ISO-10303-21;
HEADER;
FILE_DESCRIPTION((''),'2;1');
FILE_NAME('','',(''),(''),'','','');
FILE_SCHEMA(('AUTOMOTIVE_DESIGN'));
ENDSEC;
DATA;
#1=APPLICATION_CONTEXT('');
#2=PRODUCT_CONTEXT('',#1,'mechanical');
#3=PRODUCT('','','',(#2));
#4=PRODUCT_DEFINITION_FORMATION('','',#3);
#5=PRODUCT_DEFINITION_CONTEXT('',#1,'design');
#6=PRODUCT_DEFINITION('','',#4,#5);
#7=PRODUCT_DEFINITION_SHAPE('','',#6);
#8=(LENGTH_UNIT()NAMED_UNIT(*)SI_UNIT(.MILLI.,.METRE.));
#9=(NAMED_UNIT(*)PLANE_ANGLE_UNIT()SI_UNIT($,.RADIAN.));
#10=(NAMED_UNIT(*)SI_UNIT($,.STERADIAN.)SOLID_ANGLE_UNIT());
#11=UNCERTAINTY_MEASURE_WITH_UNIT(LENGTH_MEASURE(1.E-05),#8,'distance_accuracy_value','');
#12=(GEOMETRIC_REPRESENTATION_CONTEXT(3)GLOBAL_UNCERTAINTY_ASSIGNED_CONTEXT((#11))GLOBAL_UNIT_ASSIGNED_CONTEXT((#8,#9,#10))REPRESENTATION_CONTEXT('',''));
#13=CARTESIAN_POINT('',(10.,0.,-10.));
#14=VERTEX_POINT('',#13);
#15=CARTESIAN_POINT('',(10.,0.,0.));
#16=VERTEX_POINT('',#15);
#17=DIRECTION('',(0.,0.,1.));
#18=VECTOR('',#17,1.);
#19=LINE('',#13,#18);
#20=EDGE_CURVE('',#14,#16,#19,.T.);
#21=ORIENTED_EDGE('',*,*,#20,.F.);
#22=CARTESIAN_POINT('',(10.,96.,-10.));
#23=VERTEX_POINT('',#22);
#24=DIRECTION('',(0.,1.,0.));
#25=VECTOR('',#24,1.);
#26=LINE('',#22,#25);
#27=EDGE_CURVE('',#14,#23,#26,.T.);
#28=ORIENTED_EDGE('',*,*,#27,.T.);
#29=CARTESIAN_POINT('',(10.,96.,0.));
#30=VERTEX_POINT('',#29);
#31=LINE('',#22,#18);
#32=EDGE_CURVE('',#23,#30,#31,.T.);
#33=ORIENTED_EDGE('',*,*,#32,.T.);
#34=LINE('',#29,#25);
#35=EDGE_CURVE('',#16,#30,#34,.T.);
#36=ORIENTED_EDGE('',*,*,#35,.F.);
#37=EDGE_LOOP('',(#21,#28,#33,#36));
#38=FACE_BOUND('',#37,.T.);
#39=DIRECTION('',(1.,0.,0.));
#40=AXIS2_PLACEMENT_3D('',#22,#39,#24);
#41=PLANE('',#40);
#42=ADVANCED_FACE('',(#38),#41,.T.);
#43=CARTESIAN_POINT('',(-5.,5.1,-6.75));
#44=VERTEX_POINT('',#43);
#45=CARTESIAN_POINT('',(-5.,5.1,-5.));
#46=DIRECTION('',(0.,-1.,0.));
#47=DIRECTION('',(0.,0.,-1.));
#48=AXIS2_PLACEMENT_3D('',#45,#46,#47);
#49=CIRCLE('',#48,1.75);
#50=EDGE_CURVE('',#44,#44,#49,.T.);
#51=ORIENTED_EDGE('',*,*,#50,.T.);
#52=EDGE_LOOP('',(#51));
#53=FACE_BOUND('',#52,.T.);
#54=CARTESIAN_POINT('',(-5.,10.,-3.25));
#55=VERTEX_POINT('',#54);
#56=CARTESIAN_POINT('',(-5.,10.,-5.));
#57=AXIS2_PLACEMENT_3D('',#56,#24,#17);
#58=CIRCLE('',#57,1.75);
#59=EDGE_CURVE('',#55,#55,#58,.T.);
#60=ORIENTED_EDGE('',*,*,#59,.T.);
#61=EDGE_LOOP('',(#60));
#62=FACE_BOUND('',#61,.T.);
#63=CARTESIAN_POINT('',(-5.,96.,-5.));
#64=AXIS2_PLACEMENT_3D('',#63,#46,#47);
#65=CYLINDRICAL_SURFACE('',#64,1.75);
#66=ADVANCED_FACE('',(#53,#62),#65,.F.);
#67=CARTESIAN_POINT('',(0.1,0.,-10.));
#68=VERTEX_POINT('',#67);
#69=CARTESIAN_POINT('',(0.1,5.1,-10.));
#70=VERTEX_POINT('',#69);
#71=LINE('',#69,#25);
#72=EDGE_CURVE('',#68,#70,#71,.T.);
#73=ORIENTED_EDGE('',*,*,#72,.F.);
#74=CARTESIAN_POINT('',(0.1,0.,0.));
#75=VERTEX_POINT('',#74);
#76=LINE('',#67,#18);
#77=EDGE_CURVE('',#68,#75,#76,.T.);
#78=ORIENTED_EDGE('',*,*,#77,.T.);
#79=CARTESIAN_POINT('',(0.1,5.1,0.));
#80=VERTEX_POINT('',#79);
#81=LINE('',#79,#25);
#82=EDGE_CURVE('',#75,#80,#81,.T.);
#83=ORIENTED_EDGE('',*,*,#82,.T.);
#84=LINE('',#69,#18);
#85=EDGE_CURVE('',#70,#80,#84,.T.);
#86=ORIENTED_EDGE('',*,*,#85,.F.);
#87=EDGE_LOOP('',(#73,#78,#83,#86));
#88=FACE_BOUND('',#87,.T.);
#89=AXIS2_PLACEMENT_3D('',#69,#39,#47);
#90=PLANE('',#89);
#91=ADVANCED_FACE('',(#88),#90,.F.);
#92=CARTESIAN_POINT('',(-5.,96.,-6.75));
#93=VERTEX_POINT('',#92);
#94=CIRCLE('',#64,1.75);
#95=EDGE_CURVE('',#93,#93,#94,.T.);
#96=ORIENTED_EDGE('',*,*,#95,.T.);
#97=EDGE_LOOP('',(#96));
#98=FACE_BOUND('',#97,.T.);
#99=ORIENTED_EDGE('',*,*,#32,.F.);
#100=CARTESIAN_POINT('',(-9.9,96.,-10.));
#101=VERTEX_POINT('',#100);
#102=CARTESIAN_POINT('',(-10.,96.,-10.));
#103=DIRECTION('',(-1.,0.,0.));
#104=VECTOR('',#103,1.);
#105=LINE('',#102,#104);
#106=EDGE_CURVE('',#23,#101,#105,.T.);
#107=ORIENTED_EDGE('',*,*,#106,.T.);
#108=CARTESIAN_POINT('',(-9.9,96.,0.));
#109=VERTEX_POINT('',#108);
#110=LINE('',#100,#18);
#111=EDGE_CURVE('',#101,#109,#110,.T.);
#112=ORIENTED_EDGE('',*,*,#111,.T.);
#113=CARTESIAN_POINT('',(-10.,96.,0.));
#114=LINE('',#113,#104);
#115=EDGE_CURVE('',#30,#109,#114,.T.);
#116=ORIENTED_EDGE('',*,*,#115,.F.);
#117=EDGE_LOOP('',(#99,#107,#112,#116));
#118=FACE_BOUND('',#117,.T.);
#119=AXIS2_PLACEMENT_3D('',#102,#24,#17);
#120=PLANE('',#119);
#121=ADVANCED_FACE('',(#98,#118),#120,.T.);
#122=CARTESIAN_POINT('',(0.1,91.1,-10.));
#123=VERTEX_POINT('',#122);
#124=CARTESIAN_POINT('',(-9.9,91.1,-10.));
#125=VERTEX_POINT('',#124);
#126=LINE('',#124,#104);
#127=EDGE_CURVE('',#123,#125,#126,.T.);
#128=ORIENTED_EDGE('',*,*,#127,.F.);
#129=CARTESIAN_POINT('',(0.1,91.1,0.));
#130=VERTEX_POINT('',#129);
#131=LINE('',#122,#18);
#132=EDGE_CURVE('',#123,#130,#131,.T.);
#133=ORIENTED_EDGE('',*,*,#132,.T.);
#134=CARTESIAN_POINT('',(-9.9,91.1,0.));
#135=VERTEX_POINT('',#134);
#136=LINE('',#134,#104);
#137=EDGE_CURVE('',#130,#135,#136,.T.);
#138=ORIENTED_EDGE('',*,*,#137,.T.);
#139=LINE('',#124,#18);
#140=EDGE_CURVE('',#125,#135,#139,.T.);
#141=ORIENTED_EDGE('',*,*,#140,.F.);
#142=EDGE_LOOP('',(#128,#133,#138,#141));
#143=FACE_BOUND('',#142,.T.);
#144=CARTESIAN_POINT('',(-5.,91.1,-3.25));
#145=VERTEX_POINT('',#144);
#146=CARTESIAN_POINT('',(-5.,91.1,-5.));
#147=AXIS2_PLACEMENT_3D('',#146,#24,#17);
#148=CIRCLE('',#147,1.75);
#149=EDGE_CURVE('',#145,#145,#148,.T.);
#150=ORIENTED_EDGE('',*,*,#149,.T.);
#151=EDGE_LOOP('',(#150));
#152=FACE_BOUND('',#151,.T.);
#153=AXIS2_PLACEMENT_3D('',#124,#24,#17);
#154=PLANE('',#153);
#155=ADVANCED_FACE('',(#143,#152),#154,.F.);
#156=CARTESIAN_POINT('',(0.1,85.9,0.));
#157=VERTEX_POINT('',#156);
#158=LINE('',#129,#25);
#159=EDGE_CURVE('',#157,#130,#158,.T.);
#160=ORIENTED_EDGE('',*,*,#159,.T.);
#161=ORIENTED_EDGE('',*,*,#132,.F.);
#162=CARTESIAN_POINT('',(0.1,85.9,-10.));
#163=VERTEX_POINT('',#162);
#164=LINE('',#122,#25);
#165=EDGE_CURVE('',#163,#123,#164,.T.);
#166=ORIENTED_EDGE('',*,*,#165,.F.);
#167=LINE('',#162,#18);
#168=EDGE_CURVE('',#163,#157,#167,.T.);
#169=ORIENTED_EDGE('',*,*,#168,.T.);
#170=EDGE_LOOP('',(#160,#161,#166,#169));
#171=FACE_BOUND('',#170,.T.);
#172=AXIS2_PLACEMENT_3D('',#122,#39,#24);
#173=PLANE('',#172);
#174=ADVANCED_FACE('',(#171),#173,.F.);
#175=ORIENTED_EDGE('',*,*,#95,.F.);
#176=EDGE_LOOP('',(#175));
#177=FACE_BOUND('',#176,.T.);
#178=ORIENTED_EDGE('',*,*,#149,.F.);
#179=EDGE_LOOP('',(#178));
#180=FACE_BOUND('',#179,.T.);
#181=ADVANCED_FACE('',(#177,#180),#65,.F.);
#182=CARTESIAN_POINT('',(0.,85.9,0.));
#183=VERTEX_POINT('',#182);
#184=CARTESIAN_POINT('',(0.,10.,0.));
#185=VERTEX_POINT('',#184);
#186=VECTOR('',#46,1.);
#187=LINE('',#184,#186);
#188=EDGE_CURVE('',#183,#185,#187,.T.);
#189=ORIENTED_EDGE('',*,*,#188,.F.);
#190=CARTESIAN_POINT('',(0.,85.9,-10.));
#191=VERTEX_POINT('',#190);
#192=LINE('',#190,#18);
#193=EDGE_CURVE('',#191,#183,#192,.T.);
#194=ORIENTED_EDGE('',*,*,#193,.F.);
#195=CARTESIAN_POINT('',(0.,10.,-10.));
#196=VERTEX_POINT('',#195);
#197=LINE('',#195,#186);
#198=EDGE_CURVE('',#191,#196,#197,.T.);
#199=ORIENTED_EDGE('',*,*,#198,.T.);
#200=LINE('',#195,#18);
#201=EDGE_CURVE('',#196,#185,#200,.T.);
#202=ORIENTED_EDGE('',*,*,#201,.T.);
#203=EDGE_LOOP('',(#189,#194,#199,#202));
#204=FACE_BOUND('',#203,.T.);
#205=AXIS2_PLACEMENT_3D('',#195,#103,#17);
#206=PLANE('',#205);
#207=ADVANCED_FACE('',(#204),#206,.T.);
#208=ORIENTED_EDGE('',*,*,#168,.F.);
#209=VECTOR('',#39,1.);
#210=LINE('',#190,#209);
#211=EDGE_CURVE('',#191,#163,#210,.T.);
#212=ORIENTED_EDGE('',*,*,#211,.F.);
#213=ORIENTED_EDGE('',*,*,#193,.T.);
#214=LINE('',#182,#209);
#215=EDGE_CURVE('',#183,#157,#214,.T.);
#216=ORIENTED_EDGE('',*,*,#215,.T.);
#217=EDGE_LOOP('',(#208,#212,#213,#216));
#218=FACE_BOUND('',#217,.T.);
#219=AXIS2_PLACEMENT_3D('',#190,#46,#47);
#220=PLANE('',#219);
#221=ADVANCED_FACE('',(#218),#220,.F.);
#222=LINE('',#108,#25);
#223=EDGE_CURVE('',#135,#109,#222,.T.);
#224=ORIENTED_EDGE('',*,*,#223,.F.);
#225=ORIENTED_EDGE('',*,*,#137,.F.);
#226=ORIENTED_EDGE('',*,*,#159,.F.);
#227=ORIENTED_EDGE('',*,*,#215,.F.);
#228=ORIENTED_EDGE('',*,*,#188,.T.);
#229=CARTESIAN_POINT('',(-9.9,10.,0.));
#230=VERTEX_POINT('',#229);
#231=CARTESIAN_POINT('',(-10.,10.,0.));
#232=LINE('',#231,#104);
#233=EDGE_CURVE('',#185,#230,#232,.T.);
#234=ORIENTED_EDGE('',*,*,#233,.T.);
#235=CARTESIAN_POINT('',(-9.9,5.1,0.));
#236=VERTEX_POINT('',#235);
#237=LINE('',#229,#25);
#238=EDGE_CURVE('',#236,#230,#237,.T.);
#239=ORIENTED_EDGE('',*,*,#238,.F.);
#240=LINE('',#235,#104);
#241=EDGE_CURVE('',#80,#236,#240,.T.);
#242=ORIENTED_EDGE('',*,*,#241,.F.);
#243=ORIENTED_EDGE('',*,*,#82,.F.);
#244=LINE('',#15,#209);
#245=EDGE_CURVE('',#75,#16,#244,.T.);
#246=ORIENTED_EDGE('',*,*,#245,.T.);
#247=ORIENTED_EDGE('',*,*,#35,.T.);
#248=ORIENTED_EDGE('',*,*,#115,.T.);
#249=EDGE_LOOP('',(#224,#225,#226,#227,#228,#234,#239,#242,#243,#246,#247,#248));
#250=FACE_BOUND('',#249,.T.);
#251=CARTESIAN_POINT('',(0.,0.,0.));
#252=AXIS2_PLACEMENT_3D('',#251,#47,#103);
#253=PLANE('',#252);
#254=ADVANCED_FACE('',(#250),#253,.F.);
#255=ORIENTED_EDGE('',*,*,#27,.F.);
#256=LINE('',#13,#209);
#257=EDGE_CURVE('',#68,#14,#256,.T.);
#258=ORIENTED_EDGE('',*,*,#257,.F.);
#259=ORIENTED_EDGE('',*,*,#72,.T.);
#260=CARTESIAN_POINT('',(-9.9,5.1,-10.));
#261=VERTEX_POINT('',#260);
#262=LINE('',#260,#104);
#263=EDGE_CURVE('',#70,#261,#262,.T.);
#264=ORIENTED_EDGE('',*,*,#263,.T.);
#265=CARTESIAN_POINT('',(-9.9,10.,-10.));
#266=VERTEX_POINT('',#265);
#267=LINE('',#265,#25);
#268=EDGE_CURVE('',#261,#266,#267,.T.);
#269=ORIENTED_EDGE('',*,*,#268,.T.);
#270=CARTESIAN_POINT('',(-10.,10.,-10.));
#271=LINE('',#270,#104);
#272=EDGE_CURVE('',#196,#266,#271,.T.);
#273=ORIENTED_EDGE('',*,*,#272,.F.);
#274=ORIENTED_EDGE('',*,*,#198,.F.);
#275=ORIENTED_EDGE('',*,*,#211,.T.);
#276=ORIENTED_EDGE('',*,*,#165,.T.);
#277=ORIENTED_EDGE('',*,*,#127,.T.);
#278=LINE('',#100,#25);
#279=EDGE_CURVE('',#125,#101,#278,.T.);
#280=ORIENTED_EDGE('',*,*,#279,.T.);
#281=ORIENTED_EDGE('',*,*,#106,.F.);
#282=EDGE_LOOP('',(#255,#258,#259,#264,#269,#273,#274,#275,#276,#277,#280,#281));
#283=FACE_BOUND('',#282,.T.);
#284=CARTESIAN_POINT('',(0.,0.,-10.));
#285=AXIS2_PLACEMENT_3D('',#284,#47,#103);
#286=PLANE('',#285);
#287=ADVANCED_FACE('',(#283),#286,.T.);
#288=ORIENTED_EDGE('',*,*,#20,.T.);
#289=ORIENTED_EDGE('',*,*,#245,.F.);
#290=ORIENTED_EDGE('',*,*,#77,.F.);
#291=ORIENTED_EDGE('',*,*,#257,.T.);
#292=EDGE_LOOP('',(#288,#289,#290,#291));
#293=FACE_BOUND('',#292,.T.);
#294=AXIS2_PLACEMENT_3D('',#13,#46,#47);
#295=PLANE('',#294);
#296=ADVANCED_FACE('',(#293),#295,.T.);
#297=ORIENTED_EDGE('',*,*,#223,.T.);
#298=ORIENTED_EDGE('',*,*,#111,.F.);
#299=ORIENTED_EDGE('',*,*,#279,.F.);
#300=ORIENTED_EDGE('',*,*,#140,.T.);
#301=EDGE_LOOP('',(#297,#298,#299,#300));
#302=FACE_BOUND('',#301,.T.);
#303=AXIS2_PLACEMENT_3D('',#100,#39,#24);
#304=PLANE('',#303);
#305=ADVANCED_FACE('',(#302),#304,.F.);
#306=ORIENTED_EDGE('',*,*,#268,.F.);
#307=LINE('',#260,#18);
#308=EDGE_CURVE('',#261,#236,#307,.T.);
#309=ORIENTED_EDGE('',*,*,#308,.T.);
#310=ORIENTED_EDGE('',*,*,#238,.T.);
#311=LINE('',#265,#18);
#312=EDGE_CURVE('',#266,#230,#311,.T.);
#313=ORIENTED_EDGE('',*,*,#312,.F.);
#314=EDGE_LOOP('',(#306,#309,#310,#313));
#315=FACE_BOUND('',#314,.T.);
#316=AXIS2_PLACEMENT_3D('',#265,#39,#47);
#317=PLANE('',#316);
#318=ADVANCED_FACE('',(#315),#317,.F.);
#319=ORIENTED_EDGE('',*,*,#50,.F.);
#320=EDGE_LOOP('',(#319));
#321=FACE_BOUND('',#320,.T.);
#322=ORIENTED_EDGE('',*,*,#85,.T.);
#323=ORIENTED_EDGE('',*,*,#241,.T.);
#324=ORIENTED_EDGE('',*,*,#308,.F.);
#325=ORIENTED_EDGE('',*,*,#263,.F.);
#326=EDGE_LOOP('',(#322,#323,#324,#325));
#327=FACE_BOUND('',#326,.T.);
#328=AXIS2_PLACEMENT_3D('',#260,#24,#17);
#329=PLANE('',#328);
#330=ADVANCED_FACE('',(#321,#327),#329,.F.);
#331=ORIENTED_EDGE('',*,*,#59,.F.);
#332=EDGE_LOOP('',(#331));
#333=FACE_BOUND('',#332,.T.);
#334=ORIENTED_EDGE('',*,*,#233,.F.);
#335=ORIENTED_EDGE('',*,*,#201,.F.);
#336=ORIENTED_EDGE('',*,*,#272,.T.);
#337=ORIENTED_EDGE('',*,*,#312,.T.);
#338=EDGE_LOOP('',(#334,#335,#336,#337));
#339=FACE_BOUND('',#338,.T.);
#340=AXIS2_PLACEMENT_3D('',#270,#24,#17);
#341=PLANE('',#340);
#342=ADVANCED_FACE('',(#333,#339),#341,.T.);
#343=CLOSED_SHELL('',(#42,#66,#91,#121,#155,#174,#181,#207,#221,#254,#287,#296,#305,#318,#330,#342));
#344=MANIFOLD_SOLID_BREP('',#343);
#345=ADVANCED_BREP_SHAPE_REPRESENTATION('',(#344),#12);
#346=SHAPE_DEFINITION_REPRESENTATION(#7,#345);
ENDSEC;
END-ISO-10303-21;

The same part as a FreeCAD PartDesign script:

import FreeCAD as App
import Part
import Sketcher

V = App.Vector

doc = App.newDocument("Part")
body = doc.addObject("PartDesign::Body", "Body")

# Sketch on XY plane
sketch1 = doc.addObject("Sketcher::SketchObject", "Sketch")
body.addObject(sketch1)
sketch1.AttachmentSupport = (doc.XY_Plane, [""])
sketch1.MapMode = "FlatFace"
sketch1.addGeometry([
    Part.LineSegment(V(0, 5, 0), V(0, 0, 0)),  # 0
    Part.LineSegment(V(0, 0, 0), V(10, 0, 0)),  # 1
    Part.LineSegment(V(10, 0, 0), V(10, 96, 0)),  # 2
    Part.LineSegment(V(10, 96, 0), V(-10, 96, 0)),  # 3
    Part.LineSegment(V(-10, 96, 0), V(-10, 91, 0)),  # 4
    Part.LineSegment(V(-10, 91, 0), V(0, 91, 0)),  # 5
    Part.LineSegment(V(0, 91, 0), V(0, 10, 0)),  # 6
    Part.LineSegment(V(0, 10, 0), V(-10, 10, 0)),  # 7
    Part.LineSegment(V(-10, 10, 0), V(-10, 5, 0)),  # 8
    Part.LineSegment(V(-10, 5, 0), V(0, 5, 0)),  # 9
], False)
sketch1.addConstraint([
    Sketcher.Constraint("Coincident", 0, 2, 1, 1),
    Sketcher.Constraint("Coincident", 1, 2, 2, 1),
    Sketcher.Constraint("Coincident", 2, 2, 3, 1),
    Sketcher.Constraint("Coincident", 3, 2, 4, 1),
    Sketcher.Constraint("Coincident", 4, 2, 5, 1),
    Sketcher.Constraint("Coincident", 5, 2, 6, 1),
    Sketcher.Constraint("Coincident", 6, 2, 7, 1),
    Sketcher.Constraint("Coincident", 7, 2, 8, 1),
    Sketcher.Constraint("Coincident", 8, 2, 9, 1),
    Sketcher.Constraint("Coincident", 9, 2, 0, 1),
    Sketcher.Constraint("Vertical", 0),
    Sketcher.Constraint("Horizontal", 1),
    Sketcher.Constraint("Vertical", 2),
    Sketcher.Constraint("Horizontal", 3),
    Sketcher.Constraint("Vertical", 4),
    Sketcher.Constraint("Horizontal", 5),
    Sketcher.Constraint("Vertical", 6),
    Sketcher.Constraint("Horizontal", 7),
    Sketcher.Constraint("Vertical", 8),
    Sketcher.Constraint("Horizontal", 9),
    Sketcher.Constraint("Coincident", 0, 2, -1, 1),
    Sketcher.Constraint("PointOnObject", 5, 2, -2),
    Sketcher.Constraint("Vertical", 4, 2, 7, 2),
    Sketcher.Constraint("Equal", 1, 5),
    Sketcher.Constraint("Equal", 0, 4),
    Sketcher.Constraint("Equal", 4, 8),
    Sketcher.Constraint("DistanceX", 1, 1, 1, 2, 10.0),
    Sketcher.Constraint("DistanceY", 0, 2, 0, 1, 5.0),
    Sketcher.Constraint("DistanceY", 2, 1, 2, 2, 96.0),
])
pad1 = doc.addObject("PartDesign::Pad", "Pad")
body.addObject(pad1)
pad1.Profile = sketch1
pad1.Length = 10
pad1.Reversed = True

# Sketch on XY plane
sketch2 = doc.addObject("Sketcher::SketchObject", "Sketch001")
body.addObject(sketch2)
sketch2.AttachmentSupport = (doc.XY_Plane, [""])
sketch2.MapMode = "FlatFace"
sketch2.addGeometry([
    Part.LineSegment(V(-10, 10, 0), V(-10, 5, 0)),  # 0
    Part.LineSegment(V(-10, 5, 0), V(0, 5, 0)),  # 1
    Part.LineSegment(V(0, 5, 0), V(0, 0, 0)),  # 2
    Part.LineSegment(V(0, 0, 0), V(0.1, 0, 0)),  # 3
    Part.LineSegment(V(0.1, 0, 0), V(0.1, 5.1, 0)),  # 4
    Part.LineSegment(V(0.1, 5.1, 0), V(-9.9, 5.1, 0)),  # 5
    Part.LineSegment(V(-9.9, 5.1, 0), V(-9.9, 10, 0)),  # 6
    Part.LineSegment(V(-9.9, 10, 0), V(-10, 10, 0)),  # 7
    Part.LineSegment(V(-10, 96, 0), V(-10, 91, 0)),  # 8
    Part.LineSegment(V(-10, 91, 0), V(0, 91, 0)),  # 9
    Part.LineSegment(V(0, 91, 0), V(0, 85.9, 0)),  # 10
    Part.LineSegment(V(0, 85.9, 0), V(0.1, 85.9, 0)),  # 11
    Part.LineSegment(V(0.1, 85.9, 0), V(0.1, 91.1, 0)),  # 12
    Part.LineSegment(V(0.1, 91.1, 0), V(-9.9, 91.1, 0)),  # 13
    Part.LineSegment(V(-9.9, 91.1, 0), V(-9.9, 96, 0)),  # 14
    Part.LineSegment(V(-9.9, 96, 0), V(-10, 96, 0)),  # 15
], False)
sketch2.addConstraint([
    Sketcher.Constraint("Coincident", 0, 2, 1, 1),
    Sketcher.Constraint("Coincident", 1, 2, 2, 1),
    Sketcher.Constraint("Coincident", 2, 2, 3, 1),
    Sketcher.Constraint("Coincident", 3, 2, 4, 1),
    Sketcher.Constraint("Coincident", 4, 2, 5, 1),
    Sketcher.Constraint("Coincident", 5, 2, 6, 1),
    Sketcher.Constraint("Coincident", 6, 2, 7, 1),
    Sketcher.Constraint("Coincident", 7, 2, 0, 1),
    Sketcher.Constraint("Coincident", 8, 2, 9, 1),
    Sketcher.Constraint("Coincident", 9, 2, 10, 1),
    Sketcher.Constraint("Coincident", 10, 2, 11, 1),
    Sketcher.Constraint("Coincident", 11, 2, 12, 1),
    Sketcher.Constraint("Coincident", 12, 2, 13, 1),
    Sketcher.Constraint("Coincident", 13, 2, 14, 1),
    Sketcher.Constraint("Coincident", 14, 2, 15, 1),
    Sketcher.Constraint("Coincident", 15, 2, 8, 1),
    Sketcher.Constraint("Vertical", 0),
    Sketcher.Constraint("Horizontal", 1),
    Sketcher.Constraint("Vertical", 2),
    Sketcher.Constraint("Horizontal", 3),
    Sketcher.Constraint("Vertical", 4),
    Sketcher.Constraint("Horizontal", 5),
    Sketcher.Constraint("Vertical", 6),
    Sketcher.Constraint("Horizontal", 7),
    Sketcher.Constraint("Vertical", 8),
    Sketcher.Constraint("Horizontal", 9),
    Sketcher.Constraint("Vertical", 10),
    Sketcher.Constraint("Horizontal", 11),
    Sketcher.Constraint("Vertical", 12),
    Sketcher.Constraint("Horizontal", 13),
    Sketcher.Constraint("Vertical", 14),
    Sketcher.Constraint("Horizontal", 15),
    Sketcher.Constraint("Coincident", 2, 2, -1, 1),
    Sketcher.Constraint("PointOnObject", 9, 2, -2),
    Sketcher.Constraint("Vertical", 7, 2, 8, 2),
    Sketcher.Constraint("Vertical", 4, 2, 11, 2),
    Sketcher.Constraint("Vertical", 6, 2, 13, 2),
    Sketcher.Constraint("Equal", 1, 5),
    Sketcher.Constraint("Equal", 0, 2),
    Sketcher.Constraint("Equal", 2, 8),
    Sketcher.Constraint("Equal", 4, 10),
    Sketcher.Constraint("Equal", 6, 14),
    Sketcher.Constraint("DistanceX", 1, 1, 1, 2, 10.0),
    Sketcher.Constraint("DistanceY", 0, 2, 0, 1, 5.0),
    Sketcher.Constraint("DistanceX", 3, 1, 3, 2, 0.1),
    Sketcher.Constraint("DistanceY", 4, 1, 4, 2, 5.1),
    Sketcher.Constraint("DistanceY", -1, 1, 8, 2, 91.0),
])
pocket1 = doc.addObject("PartDesign::Pocket", "Pocket")
body.addObject(pocket1)
pocket1.Profile = sketch2
pocket1.Type = "ThroughAll"

# Sketch on XZ plane
sketch3 = doc.addObject("Sketcher::SketchObject", "Sketch002")
body.addObject(sketch3)
sketch3.AttachmentSupport = (doc.XZ_Plane, [""])
sketch3.MapMode = "FlatFace"
sketch3.AttachmentOffset = App.Placement(V(0, 0, -5.1), App.Rotation())
sketch3.addGeometry(Part.Circle(V(-5, -5, 0), V(0, 0, 1), 1.75), False)
sketch3.addConstraint([
    Sketcher.Constraint("Diameter", 0, 3.5),
    Sketcher.Constraint("DistanceX", 0, 3, -1, 1, 5.0),
    Sketcher.Constraint("DistanceY", 0, 3, -1, 1, 5.0),
])
pocket2 = doc.addObject("PartDesign::Pocket", "Pocket001")
body.addObject(pocket2)
pocket2.Profile = sketch3
pocket2.Type = "ThroughAll"

doc.recompute()
